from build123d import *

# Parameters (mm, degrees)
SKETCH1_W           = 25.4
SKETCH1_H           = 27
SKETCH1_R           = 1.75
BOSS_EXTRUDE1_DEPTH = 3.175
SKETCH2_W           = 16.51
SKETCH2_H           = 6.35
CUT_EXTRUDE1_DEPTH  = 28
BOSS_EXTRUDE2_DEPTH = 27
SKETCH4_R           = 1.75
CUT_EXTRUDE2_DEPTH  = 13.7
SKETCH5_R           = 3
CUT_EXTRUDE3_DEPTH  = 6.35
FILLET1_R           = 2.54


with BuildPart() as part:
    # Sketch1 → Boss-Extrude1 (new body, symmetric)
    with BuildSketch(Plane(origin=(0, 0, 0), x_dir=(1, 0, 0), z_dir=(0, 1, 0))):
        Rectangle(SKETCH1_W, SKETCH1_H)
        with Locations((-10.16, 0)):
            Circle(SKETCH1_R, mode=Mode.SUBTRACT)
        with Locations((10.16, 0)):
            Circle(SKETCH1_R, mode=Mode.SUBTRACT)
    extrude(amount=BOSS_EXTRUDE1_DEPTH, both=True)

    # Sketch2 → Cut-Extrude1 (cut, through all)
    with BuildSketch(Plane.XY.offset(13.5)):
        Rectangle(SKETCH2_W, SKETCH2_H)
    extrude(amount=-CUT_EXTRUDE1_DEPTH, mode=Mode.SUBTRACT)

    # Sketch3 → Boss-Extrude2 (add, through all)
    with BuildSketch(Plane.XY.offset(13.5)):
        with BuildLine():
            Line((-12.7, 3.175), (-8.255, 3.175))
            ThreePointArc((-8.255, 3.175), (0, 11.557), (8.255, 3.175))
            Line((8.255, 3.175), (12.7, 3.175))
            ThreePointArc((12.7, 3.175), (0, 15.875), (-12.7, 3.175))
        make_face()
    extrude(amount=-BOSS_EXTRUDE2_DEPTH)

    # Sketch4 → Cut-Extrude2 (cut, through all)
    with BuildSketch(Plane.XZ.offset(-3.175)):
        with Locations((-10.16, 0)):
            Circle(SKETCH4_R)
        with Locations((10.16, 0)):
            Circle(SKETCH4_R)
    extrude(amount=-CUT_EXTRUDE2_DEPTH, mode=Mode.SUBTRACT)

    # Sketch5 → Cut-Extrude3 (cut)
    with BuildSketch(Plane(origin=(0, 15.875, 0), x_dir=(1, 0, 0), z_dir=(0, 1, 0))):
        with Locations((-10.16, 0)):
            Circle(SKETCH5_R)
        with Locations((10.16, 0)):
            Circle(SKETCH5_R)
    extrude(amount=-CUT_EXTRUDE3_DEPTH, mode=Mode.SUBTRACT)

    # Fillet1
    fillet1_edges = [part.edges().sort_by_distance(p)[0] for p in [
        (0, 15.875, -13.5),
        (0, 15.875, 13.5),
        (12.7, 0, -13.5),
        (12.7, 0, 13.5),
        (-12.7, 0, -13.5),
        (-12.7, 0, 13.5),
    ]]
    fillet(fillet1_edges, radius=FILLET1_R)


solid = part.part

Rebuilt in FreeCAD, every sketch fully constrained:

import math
import FreeCAD as App
import Part
import Sketcher

V = App.Vector
Q = App.Units.Quantity


def edges_at(feature, points):
    """Names of the edges that pass closest to the given points."""
    edges = feature.Shape.Edges
    near = lambda p: min(range(len(edges)), key=lambda i: edges[i].distToShape(Part.Vertex(*p))[0])
    return sorted({f"Edge{near(p) + 1}" for p in points})

doc = App.newDocument("Part")
body = doc.addObject("PartDesign::Body", "Body")
body.AllowCompound = True

# Sketch on XZ plane
sketch1 = body.newObject("Sketcher::SketchObject", "Sketch")
sketch1.AttachmentSupport = (doc.getObject("XZ_Plane"), [""])
sketch1.MapMode = "FlatFace"
sketch1.addGeometry([
    Part.LineSegment(V(-12.7, -13.5, 0), V(-12.7, 13.5, 0)),  # 0
    Part.LineSegment(V(-12.7, 13.5, 0), V(12.7, 13.5, 0)),  # 1
    Part.LineSegment(V(12.7, 13.5, 0), V(12.7, -13.5, 0)),  # 2
    Part.LineSegment(V(12.7, -13.5, 0), V(-12.7, -13.5, 0)),  # 3
    Part.Circle(V(-10.2, 0, 0), V(0, 0, 1), 1.8),  # 4
    Part.Circle(V(10.2, 0, 0), V(0, 0, 1), 1.8),  # 5
], False)
sketch1.addConstraint([
    Sketcher.Constraint("Coincident", 0, 2, 1, 1),
    Sketcher.Constraint("Coincident", 1, 2, 2, 1),
    Sketcher.Constraint("Coincident", 2, 2, 3, 1),
    Sketcher.Constraint("Coincident", 3, 2, 0, 1),
    Sketcher.Constraint("Vertical", 0),
    Sketcher.Constraint("Horizontal", 1),
    Sketcher.Constraint("Vertical", 2),
    Sketcher.Constraint("Horizontal", 3),
    Sketcher.Constraint("Equal", 4, 5),
    Sketcher.Constraint("Symmetric", 4, 3, 5, 3, -1, 1),
    Sketcher.Constraint("Symmetric", 0, 2, 2, 2, -1, 1),
    Sketcher.Constraint("PointOnObject", 4, 3, -1),
    Sketcher.Constraint("DistanceX", 1, 1, 1, 2, Q("1 in")),
    Sketcher.Constraint("DistanceX", 4, 3, -1, 1, Q("0.4 in")),
    Sketcher.Constraint("Diameter", 4, Q("3.5 mm")),
    Sketcher.Constraint("DistanceY", 0, 1, 0, 2, Q("27 mm")),
])
pad1 = body.newObject("PartDesign::Pad", "Pad")
pad1.Profile = sketch1
pad1.Length = Q("0.25 in")
pad1.Midplane = True

# Sketch on XY plane
sketch2 = body.newObject("Sketcher::SketchObject", "Sketch001")
sketch2.AttachmentSupport = (doc.getObject("XY_Plane"), [""])
sketch2.MapMode = "FlatFace"
sketch2.AttachmentOffset = App.Placement(V(0, 0, 13.5), App.Rotation())
sketch2.addGeometry([
    Part.LineSegment(V(-8, 3, 0), V(-8, -3, 0)),
    Part.LineSegment(V(-8, -3, 0), V(8, -3, 0)),
    Part.LineSegment(V(8, -3, 0), V(8, 3, 0)),
    Part.LineSegment(V(8, 3, 0), V(-8, 3, 0)),
], False)
sketch2.addConstraint([
    Sketcher.Constraint("Coincident", 0, 2, 1, 1),
    Sketcher.Constraint("Coincident", 1, 2, 2, 1),
    Sketcher.Constraint("Coincident", 2, 2, 3, 1),
    Sketcher.Constraint("Coincident", 3, 2, 0, 1),
    Sketcher.Constraint("Vertical", 0),
    Sketcher.Constraint("Horizontal", 1),
    Sketcher.Constraint("Vertical", 2),
    Sketcher.Constraint("Horizontal", 3),
    Sketcher.Constraint("Symmetric", 0, 2, 2, 2, -1, 1),
    Sketcher.Constraint("DistanceX", 1, 1, 1, 2, Q("0.65 in")),
    Sketcher.Constraint("DistanceY", 0, 2, 0, 1, Q("0.25 in")),
])
pocket1 = body.newObject("PartDesign::Pocket", "Pocket")
pocket1.Profile = sketch2
pocket1.Type = "ThroughAll"

# Sketch on XY plane
sketch3 = body.newObject("Sketcher::SketchObject", "Sketch002")
sketch3.AttachmentSupport = (doc.getObject("XY_Plane"), [""])
sketch3.MapMode = "FlatFace"
sketch3.AttachmentOffset = App.Placement(V(0, 0, 13.5), App.Rotation())
sketch3.addGeometry([
    Part.LineSegment(V(-12.7, 3.2, 0), V(-8.3, 3.2, 0)),
    Part.ArcOfCircle(Part.Circle(V(0, 3.3, 0), V(0, 0, 1), 8.3), math.radians(-1), math.radians(181)),
    Part.LineSegment(V(8.3, 3.2, 0), V(12.7, 3.2, 0)),
    Part.ArcOfCircle(Part.Circle(V(0, 3.2, 0), V(0, 0, 1), 12.7), math.radians(0), math.radians(180)),
], False)
sketch3.addConstraint([
    Sketcher.Constraint("Coincident", 0, 2, 1, 2),
    Sketcher.Constraint("Coincident", 1, 1, 2, 1),
    Sketcher.Constraint("Coincident", 2, 2, 3, 1),
    Sketcher.Constraint("Coincident", 3, 2, 0, 1),
    Sketcher.Constraint("Horizontal", 0),
    Sketcher.Constraint("Horizontal", 2),
    Sketcher.Constraint("Symmetric", 0, 2, 1, 1, -2),
    Sketcher.Constraint("PointOnObject", 3, 3, -2),
    Sketcher.Constraint("Horizontal", 3, 3, 0, 2),
    Sketcher.Constraint("Radius", 3, Q("0.5 in")),
    Sketcher.Constraint("DistanceX", 0, 1, 0, 2, Q("0.175 in")),
    Sketcher.Constraint("DistanceY", -1, 1, 3, 3, Q("0.125 in")),
    Sketcher.Constraint("Radius", 1, Q("8.255962 mm")),
])
pad2 = body.newObject("PartDesign::Pad", "Pad001")
pad2.Profile = sketch3
pad2.Length = 27
pad2.Reversed = True

# Sketch on XZ plane
sketch4 = body.newObject("Sketcher::SketchObject", "Sketch003")
sketch4.AttachmentSupport = (doc.getObject("XZ_Plane"), [""])
sketch4.MapMode = "FlatFace"
sketch4.AttachmentOffset = App.Placement(V(0, 0, -0.125 * 25.4), App.Rotation())
sketch4.addGeometry([
    Part.Circle(V(-10.2, 0, 0), V(0, 0, 1), 1.8),
    Part.Circle(V(10.2, 0, 0), V(0, 0, 1), 1.8),
], False)
sketch4.addConstraint([
    Sketcher.Constraint("Equal", 0, 1),
    Sketcher.Constraint("Symmetric", 0, 3, 1, 3, -1, 1),
    Sketcher.Constraint("PointOnObject", 0, 3, -1),
    Sketcher.Constraint("DistanceX", 0, 3, -1, 1, Q("0.4 in")),
    Sketcher.Constraint("Diameter", 0, Q("3.5 mm")),
])
pocket2 = body.newObject("PartDesign::Pocket", "Pocket001")
pocket2.Profile = sketch4
pocket2.Type = "ThroughAll"

# Sketch on XZ plane
sketch5 = body.newObject("Sketcher::SketchObject", "Sketch004")
sketch5.AttachmentSupport = (doc.getObject("XZ_Plane"), [""])
sketch5.MapMode = "FlatFace"
sketch5.AttachmentOffset = App.Placement(V(0, 0, -0.625 * 25.4), App.Rotation())
sketch5.addGeometry([
    Part.Circle(V(-10.2, 0, 0), V(0, 0, 1), 3),
    Part.Circle(V(10.2, 0, 0), V(0, 0, 1), 3),
], False)
sketch5.addConstraint([
    Sketcher.Constraint("Equal", 0, 1),
    Sketcher.Constraint("Symmetric", 0, 3, 1, 3, -1, 1),
    Sketcher.Constraint("PointOnObject", 0, 3, -1),
    Sketcher.Constraint("DistanceX", 0, 3, -1, 1, Q("0.4 in")),
    Sketcher.Constraint("Diameter", 0, Q("6 mm")),
])
pocket3 = body.newObject("PartDesign::Pocket", "Pocket002")
pocket3.Profile = sketch5
pocket3.Length = Q("0.25 in")
pocket3.Reversed = True
doc.recompute()

fillet = body.newObject("PartDesign::Fillet", "Fillet")
fillet.Base = (pocket3, edges_at(pocket3, [
    (0, 15.875, -13.5),
    (0, 15.875, 13.5),
    (12.7, 0, -13.5),
    (12.7, 0, 13.5),
    (-12.7, 0, -13.5),
    (-12.7, 0, 13.5),
]))
fillet.Radius = Q("0.1 in")

doc.recompute()
